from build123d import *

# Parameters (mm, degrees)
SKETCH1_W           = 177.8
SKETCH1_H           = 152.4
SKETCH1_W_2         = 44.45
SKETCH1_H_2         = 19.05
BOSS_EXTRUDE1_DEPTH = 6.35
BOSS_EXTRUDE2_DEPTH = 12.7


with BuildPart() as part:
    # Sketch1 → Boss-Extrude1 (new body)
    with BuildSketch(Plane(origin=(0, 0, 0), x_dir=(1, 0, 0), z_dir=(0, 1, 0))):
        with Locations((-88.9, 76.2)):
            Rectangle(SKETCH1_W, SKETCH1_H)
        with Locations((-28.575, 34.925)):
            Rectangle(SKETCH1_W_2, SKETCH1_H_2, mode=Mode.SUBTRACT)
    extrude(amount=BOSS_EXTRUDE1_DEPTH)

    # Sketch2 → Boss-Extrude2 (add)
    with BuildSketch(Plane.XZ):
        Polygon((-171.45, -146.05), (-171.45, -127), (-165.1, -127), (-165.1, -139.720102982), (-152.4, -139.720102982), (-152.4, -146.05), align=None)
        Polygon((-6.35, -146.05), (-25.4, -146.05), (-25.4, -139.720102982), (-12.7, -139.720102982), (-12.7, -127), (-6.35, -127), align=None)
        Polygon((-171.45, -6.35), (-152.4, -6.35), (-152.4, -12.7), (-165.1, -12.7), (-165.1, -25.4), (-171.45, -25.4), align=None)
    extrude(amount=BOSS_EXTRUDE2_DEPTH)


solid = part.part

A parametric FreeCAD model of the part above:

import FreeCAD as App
import Part
import Sketcher
from FreeCAD import Vector
Q = App.Units.Quantity


def add_polygon(sketch, points):
    """Adds a closed chain of lines whose ends are joined by coincident constraints."""
    first, n = sketch.GeometryCount, len(points)
    for a, b in zip(points, points[1:] + points[:1]):
        sketch.addGeometry(Part.LineSegment(App.Vector(*a, 0), App.Vector(*b, 0)), False)
    for i in range(n):
        sketch.addConstraint(Sketcher.Constraint("Coincident", first + i, 2, first + (i + 1) % n, 1))

doc = App.newDocument("Part")
body = doc.addObject("PartDesign::Body", "Body")

# Sketch on XZ plane
sketch1 = body.newObject("Sketcher::SketchObject", "Sketch")
sketch1.AttachmentSupport = (doc.getObject("XZ_Plane"), [""])
sketch1.MapMode = "FlatFace"
add_polygon(sketch1, [(-178, -152), (-178, 0), (0, 0), (0, -152)])  # lines 0-3
add_polygon(sketch1, [(-6, -25), (-51, -25), (-51, -44), (-6, -44)])  # lines 4-7
sketch1.addConstraint([
    Sketcher.Constraint("Vertical", 0),
    Sketcher.Constraint("Horizontal", 1),
    Sketcher.Constraint("Vertical", 2),
    Sketcher.Constraint("Horizontal", 3),
    Sketcher.Constraint("Horizontal", 4),
    Sketcher.Constraint("Vertical", 5),
    Sketcher.Constraint("Horizontal", 6),
    Sketcher.Constraint("Vertical", 7),
    Sketcher.Constraint("Coincident", 1, 2, -1, 1),
    Sketcher.Constraint("DistanceX", 1, 1, 1, 2, Q("7 in")),
    Sketcher.Constraint("DistanceY", 0, 1, 0, 2, Q("6 in")),
    Sketcher.Constraint("DistanceX", 4, 2, -1, 1, Q("2 in")),
    Sketcher.Constraint("DistanceY", 4, 2, -1, 1, Q("1 in")),
    Sketcher.Constraint("DistanceX", 4, 2, 4, 1, Q("1.75 in")),
    Sketcher.Constraint("DistanceY", 5, 2, 5, 1, Q("0.75 in")),
])
pad1 = body.newObject("PartDesign::Pad", "Pad")
pad1.Profile = sketch1
pad1.Length = Q("0.25 in")
pad1.Reversed = True

# Sketch on XZ plane
sketch2 = body.newObject("Sketcher::SketchObject", "Sketch001")
sketch2.AttachmentSupport = (doc.getObject("XZ_Plane"), [""])
sketch2.MapMode = "FlatFace"
add_polygon(sketch2, [(-171, -127), (-171, -146), (-152, -146), (-152, -140), (-165, -140), (-165, -127)])  # lines 0-5
add_polygon(sketch2, [(-25, -146), (-6, -146), (-6, -127), (-13, -127), (-13, -140), (-25, -140)])  # lines 6-11
add_polygon(sketch2, [(-152, -6), (-171, -6), (-171, -25), (-165, -25), (-165, -13), (-152, -13)])  # lines 12-17
sketch2.addConstraint([
    Sketcher.Constraint("Vertical", 0),
    Sketcher.Constraint("Horizontal", 1),
    Sketcher.Constraint("Vertical", 2),
    Sketcher.Constraint("Horizontal", 3),
    Sketcher.Constraint("Vertical", 4),
    Sketcher.Constraint("Horizontal", 5),
    Sketcher.Constraint("Horizontal", 6),
    Sketcher.Constraint("Vertical", 7),
    Sketcher.Constraint("Horizontal", 8),
    Sketcher.Constraint("Vertical", 9),
    Sketcher.Constraint("Horizontal", 10),
    Sketcher.Constraint("Vertical", 11),
    Sketcher.Constraint("Horizontal", 12),
    Sketcher.Constraint("Vertical", 13),
    Sketcher.Constraint("Horizontal", 14),
    Sketcher.Constraint("Vertical", 15),
    Sketcher.Constraint("Horizontal", 16),
    Sketcher.Constraint("Vertical", 17),
    Sketcher.Constraint("Horizontal", 1, 2, 6, 2),
    Sketcher.Constraint("Horizontal", 5, 2, 7, 2),
    Sketcher.Constraint("Horizontal", 3, 2, 9, 2),
    Sketcher.Constraint("Vertical", 5, 2, 12, 2),
    Sketcher.Constraint("Vertical", 4, 2, 14, 2),
    Sketcher.Constraint("Vertical", 2, 2, 16, 2),
    Sketcher.Constraint("Equal", 1, 6),
    Sketcher.Constraint("Equal", 5, 8),
    Sketcher.Constraint("Equal", 12, 0),
    Sketcher.Constraint("Equal", 7, 13),
    Sketcher.Constraint("Equal", 16, 15),
    Sketcher.Constraint("DistanceX", 3, 2, 3, 1, Q("0.5 in")),
    Sketcher.Constraint("DistanceX", 1, 2, -1, 1, Q("6 in")),
    Sketcher.Constraint("DistanceY", 4, 2, -1, 1, Q("5 in")),
    Sketcher.Constraint("DistanceX", 10, 2, -1, 1, Q("1 in")),
    Sketcher.Constraint("DistanceY", 13, 2, -1, 1, Q("1 in")),
    Sketcher.Constraint("DistanceX", 1, 1, 1, 2, Q("0.75 in")),
    Sketcher.Constraint("DistanceY", 2, 1, 2, 2, 6.329897),
])
pad2 = body.newObject("PartDesign::Pad", "Pad001")
pad2.Profile = sketch2
pad2.Length = Q("0.5 in")

doc.recompute()
